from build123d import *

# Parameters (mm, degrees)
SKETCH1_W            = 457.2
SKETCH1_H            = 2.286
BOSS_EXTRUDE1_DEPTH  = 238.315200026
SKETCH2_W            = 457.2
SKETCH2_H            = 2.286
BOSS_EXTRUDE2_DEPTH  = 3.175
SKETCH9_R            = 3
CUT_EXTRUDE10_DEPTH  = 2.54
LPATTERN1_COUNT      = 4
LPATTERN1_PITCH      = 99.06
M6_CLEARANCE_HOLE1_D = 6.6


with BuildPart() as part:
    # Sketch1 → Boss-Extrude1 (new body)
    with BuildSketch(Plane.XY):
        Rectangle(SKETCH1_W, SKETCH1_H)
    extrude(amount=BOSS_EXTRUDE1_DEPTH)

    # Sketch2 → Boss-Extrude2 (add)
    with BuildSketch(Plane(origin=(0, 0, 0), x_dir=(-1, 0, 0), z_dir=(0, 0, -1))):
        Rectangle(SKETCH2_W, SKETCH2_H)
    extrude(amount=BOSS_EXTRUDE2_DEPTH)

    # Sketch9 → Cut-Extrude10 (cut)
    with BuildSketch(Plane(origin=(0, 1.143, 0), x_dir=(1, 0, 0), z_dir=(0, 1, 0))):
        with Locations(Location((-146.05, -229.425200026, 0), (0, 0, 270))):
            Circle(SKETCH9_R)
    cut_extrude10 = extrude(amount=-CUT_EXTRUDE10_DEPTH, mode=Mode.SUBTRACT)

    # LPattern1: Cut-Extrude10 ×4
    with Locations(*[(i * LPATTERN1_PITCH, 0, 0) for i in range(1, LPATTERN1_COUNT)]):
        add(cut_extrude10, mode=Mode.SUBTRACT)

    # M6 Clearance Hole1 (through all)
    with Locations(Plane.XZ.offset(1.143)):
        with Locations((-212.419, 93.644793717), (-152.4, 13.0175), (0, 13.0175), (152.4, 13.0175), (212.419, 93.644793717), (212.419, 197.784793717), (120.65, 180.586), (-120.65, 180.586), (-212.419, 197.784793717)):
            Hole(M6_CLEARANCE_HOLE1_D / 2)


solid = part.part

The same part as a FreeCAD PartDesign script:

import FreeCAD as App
import Part
import Sketcher
Q = App.Units.Quantity

doc = App.newDocument("Part")
body = doc.addObject("PartDesign::Body", "Body")

# Sketch on XY plane
sketch1 = body.newObject("Sketcher::SketchObject", "Sketch")
sketch1.AttachmentSupport = (doc.getObject("XY_Plane"), [""])
sketch1.MapMode = "FlatFace"
sketch1.addGeometry(Part.LineSegment(App.Vector(-228.6, 1.1, 0), App.Vector(-228.6, -1.1, 0)), False)
sketch1.addGeometry(Part.LineSegment(App.Vector(-228.6, -1.1, 0), App.Vector(228.6, -1.1, 0)), False)
sketch1.addGeometry(Part.LineSegment(App.Vector(228.6, -1.1, 0), App.Vector(228.6, 1.1, 0)), False)
sketch1.addGeometry(Part.LineSegment(App.Vector(228.6, 1.1, 0), App.Vector(-228.6, 1.1, 0)), False)
sketch1.addConstraint(Sketcher.Constraint("Coincident", 0, 2, 1, 1))
sketch1.addConstraint(Sketcher.Constraint("Coincident", 1, 2, 2, 1))
sketch1.addConstraint(Sketcher.Constraint("Coincident", 2, 2, 3, 1))
sketch1.addConstraint(Sketcher.Constraint("Coincident", 3, 2, 0, 1))
sketch1.addConstraint(Sketcher.Constraint("Vertical", 0))
sketch1.addConstraint(Sketcher.Constraint("Horizontal", 1))
sketch1.addConstraint(Sketcher.Constraint("Vertical", 2))
sketch1.addConstraint(Sketcher.Constraint("Horizontal", 3))
sketch1.addConstraint(Sketcher.Constraint("Symmetric", 0, 2, 2, 2, -1, 1))
sketch1.addConstraint(Sketcher.Constraint("DistanceX", 1, 1, 1, 2, Q("18 in")))
sketch1.addConstraint(Sketcher.Constraint("DistanceY", 0, 2, 0, 1, Q("0.09 in")))
pad1 = body.newObject("PartDesign::Pad", "Pad")
pad1.Profile = sketch1
pad1.Length = 238.3152

# Sketch on XY plane
sketch2 = body.newObject("Sketcher::SketchObject", "Sketch001")
sketch2.AttachmentSupport = (doc.getObject("XY_Plane"), [""])
sketch2.MapMode = "FlatFace"
sketch2.addGeometry(Part.LineSegment(App.Vector(228.6, 1.1, 0), App.Vector(228.6, -1.1, 0)), False)
sketch2.addGeometry(Part.LineSegment(App.Vector(228.6, -1.1, 0), App.Vector(-228.6, -1.1, 0)), False)
sketch2.addGeometry(Part.LineSegment(App.Vector(-228.6, -1.1, 0), App.Vector(-228.6, 1.1, 0)), False)
sketch2.addGeometry(Part.LineSegment(App.Vector(-228.6, 1.1, 0), App.Vector(228.6, 1.1, 0)), False)
sketch2.addConstraint(Sketcher.Constraint("Coincident", 0, 2, 1, 1))
sketch2.addConstraint(Sketcher.Constraint("Coincident", 1, 2, 2, 1))
sketch2.addConstraint(Sketcher.Constraint("Coincident", 2, 2, 3, 1))
sketch2.addConstraint(Sketcher.Constraint("Coincident", 3, 2, 0, 1))
sketch2.addConstraint(Sketcher.Constraint("Vertical", 0))
sketch2.addConstraint(Sketcher.Constraint("Horizontal", 1))
sketch2.addConstraint(Sketcher.Constraint("Vertical", 2))
sketch2.addConstraint(Sketcher.Constraint("Horizontal", 3))
sketch2.addConstraint(Sketcher.Constraint("Symmetric", 0, 2, 2, 2, -1, 1))
sketch2.addConstraint(Sketcher.Constraint("DistanceX", 1, 2, 1, 1, Q("18 in")))
sketch2.addConstraint(Sketcher.Constraint("DistanceY", 0, 2, 0, 1, Q("0.09 in")))
pad2 = body.newObject("PartDesign::Pad", "Pad001")
pad2.Profile = sketch2
pad2.Length = Q("0.125 in")
pad2.Reversed = True

# Sketch on XZ plane
sketch3 = body.newObject("Sketcher::SketchObject", "Sketch002")
sketch3.AttachmentSupport = (doc.getObject("XZ_Plane"), [""])
sketch3.MapMode = "FlatFace"
sketch3.AttachmentOffset = App.Placement(App.Vector(0, 0, -0.045 * 25.4), App.Rotation())
sketch3.addGeometry(Part.Circle(App.Vector(-146.1, 229.4, 0), App.Vector(0, 0, 1), 3), False)
sketch3.addConstraint(Sketcher.Constraint("Diameter", 0, Q("6 mm")))
sketch3.addConstraint(Sketcher.Constraint("DistanceX", 0, 3, -1, 1, Q("5.75 in")))
sketch3.addConstraint(Sketcher.Constraint("DistanceY", -1, 1, 0, 3, Q("229.4252 mm")))
pocket1 = body.newObject("PartDesign::Pocket", "Pocket")
pocket1.Profile = sketch3
pocket1.Length = Q("0.1 in")
pocket1.Reversed = True
doc.recompute()

linearpattern = body.newObject("PartDesign::LinearPattern", "LinearPattern")
linearpattern.Originals = [pocket1]
linearpattern.Direction = (doc.getObject("X_Axis"), [""])
linearpattern.Mode = "offset"
linearpattern.Offset = Q("3.9 in")
linearpattern.Occurrences = 4
body.Tip = linearpattern

# Sketch on XZ plane
sketch4 = body.newObject("Sketcher::SketchObject", "Sketch003")
sketch4.AttachmentSupport = (doc.getObject("XZ_Plane"), [""])
sketch4.MapMode = "FlatFace"
sketch4.AttachmentOffset = App.Placement(App.Vector(0, 0, 0.045 * 25.4), App.Rotation())
sketch4.addGeometry(Part.Circle(App.Vector(-212.4, 93.6, 0), App.Vector(0, 0, 1), 3.3), False)
sketch4.addGeometry(Part.Circle(App.Vector(-152.4, 13, 0), App.Vector(0, 0, 1), 3.3), False)
sketch4.addGeometry(Part.Circle(App.Vector(0, 13, 0), App.Vector(0, 0, 1), 3.3), False)
sketch4.addGeometry(Part.Circle(App.Vector(152.4, 13, 0), App.Vector(0, 0, 1), 3.3), False)
sketch4.addGeometry(Part.Circle(App.Vector(212.4, 93.6, 0), App.Vector(0, 0, 1), 3.3), False)
sketch4.addGeometry(Part.Circle(App.Vector(212.4, 197.8, 0), App.Vector(0, 0, 1), 3.3), False)
sketch4.addGeometry(Part.Circle(App.Vector(120.7, 180.6, 0), App.Vector(0, 0, 1), 3.3), False)
sketch4.addGeometry(Part.Circle(App.Vector(-120.7, 180.6, 0), App.Vector(0, 0, 1), 3.3), False)
sketch4.addGeometry(Part.Circle(App.Vector(-212.4, 197.8, 0), App.Vector(0, 0, 1), 3.3), False)
sketch4.addConstraint(Sketcher.Constraint("Equal", 0, 1))
sketch4.addConstraint(Sketcher.Constraint("Equal", 1, 2))
sketch4.addConstraint(Sketcher.Constraint("Equal", 2, 3))
sketch4.addConstraint(Sketcher.Constraint("Equal", 3, 4))
sketch4.addConstraint(Sketcher.Constraint("Equal", 4, 5))
sketch4.addConstraint(Sketcher.Constraint("Equal", 5, 6))
sketch4.addConstraint(Sketcher.Constraint("Equal", 6, 7))
sketch4.addConstraint(Sketcher.Constraint("Equal", 7, 8))
sketch4.addConstraint(Sketcher.Constraint("Symmetric", 1, 3, 3, 3, -2))
sketch4.addConstraint(Sketcher.Constraint("Symmetric", 0, 3, 4, 3, -2))
sketch4.addConstraint(Sketcher.Constraint("Symmetric", 6, 3, 7, 3, -2))
sketch4.addConstraint(Sketcher.Constraint("Symmetric", 5, 3, 8, 3, -2))
sketch4.addConstraint(Sketcher.Constraint("PointOnObject", 2, 3, -2))
sketch4.addConstraint(Sketcher.Constraint("Horizontal", 1, 3, 2, 3))
sketch4.addConstraint(Sketcher.Constraint("Vertical", 4, 3, 5, 3))
sketch4.addConstraint(Sketcher.Constraint("DistanceX", 1, 3, -1, 1, Q("6 in")))
sketch4.addConstraint(Sketcher.Constraint("DistanceY", 4, 3, 5, 3, Q("4.1 in")))
sketch4.addConstraint(Sketcher.Constraint("DistanceX", 7, 3, 6, 3, Q("9.5 in")))
sketch4.addConstraint(Sketcher.Constraint("Diameter", 0, Q("6.6 mm")))
sketch4.addConstraint(Sketcher.Constraint("DistanceY", -1, 1, 1, 3, Q("0.5125 in")))
sketch4.addConstraint(Sketcher.Constraint("DistanceX", 0, 3, -1, 1, Q("212.419 mm")))
sketch4.addConstraint(Sketcher.Constraint("DistanceY", -1, 1, 6, 3, Q("180.586 mm")))
sketch4.addConstraint(Sketcher.Constraint("DistanceY", -1, 1, 0, 3, Q("93.644794 mm")))
doc.recompute()
hole = body.newObject("PartDesign::Hole", "Hole")
hole.Profile = sketch4
hole.ThreadType = "None"
hole.Diameter = 6.6
hole.DepthType = "ThroughAll"

doc.recompute()
